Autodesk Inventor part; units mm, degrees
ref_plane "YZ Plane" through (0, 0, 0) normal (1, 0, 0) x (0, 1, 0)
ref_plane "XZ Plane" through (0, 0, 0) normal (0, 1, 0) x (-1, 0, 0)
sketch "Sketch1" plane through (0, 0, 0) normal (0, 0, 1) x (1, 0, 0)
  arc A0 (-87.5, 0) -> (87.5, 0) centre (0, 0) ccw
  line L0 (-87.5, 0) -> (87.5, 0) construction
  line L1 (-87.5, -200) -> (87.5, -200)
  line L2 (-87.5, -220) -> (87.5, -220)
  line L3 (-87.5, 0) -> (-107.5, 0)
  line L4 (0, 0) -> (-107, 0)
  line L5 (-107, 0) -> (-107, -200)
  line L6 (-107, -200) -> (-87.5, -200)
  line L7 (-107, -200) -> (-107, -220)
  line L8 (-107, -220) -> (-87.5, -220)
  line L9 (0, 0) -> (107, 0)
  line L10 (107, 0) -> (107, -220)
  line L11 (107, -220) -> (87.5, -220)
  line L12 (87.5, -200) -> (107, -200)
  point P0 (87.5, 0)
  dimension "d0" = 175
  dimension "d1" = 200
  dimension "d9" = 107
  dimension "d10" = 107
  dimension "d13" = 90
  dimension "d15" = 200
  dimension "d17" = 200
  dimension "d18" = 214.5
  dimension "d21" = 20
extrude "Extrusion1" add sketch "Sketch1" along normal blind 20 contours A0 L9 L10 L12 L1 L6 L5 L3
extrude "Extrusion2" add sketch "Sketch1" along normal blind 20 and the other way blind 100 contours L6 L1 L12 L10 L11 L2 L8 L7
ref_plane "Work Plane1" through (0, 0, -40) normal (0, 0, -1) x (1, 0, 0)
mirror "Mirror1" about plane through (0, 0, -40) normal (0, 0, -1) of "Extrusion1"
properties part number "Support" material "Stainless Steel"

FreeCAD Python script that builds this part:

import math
import FreeCAD as App
import Part
import Sketcher
from FreeCAD import Vector

doc = App.newDocument("Part")
params = doc.addObject("Spreadsheet::Sheet", "Params")
for row, (alias, value) in enumerate([
    ("sketch1_radius", "87.5 mm"),
    ("sketch1_height", "200 mm"),
    ("pad1_length", "20 mm"),
    ("sketch2_height", "20 mm"),
    ("pad2_length", "20 mm"),
    ("pad2_length2", "100 mm"),
], start=1):
    params.set(f"A{row}", alias)
    params.set(f"B{row}", "=" + value)
    params.setAlias(f"B{row}", alias)

body = doc.addObject("PartDesign::Body", "Body")

sketch1 = body.newObject("Sketcher::SketchObject", "Sketch")
sketch1.AttachmentSupport = (doc.getObject("XY_Plane"), [""])
sketch1.MapMode = "FlatFace"
sketch1.addGeometry([
    Part.ArcOfCircle(Part.Circle(Vector(0, 0, 0), Vector(0, 0, 1), 88), math.radians(180), math.radians(360)),
    Part.LineSegment(Vector(-88, 0, 0), Vector(-107, 0, 0)),
    Part.LineSegment(Vector(-107, 0, 0), Vector(-107, -200, 0)),
    Part.LineSegment(Vector(-107, -200, 0), Vector(107, -200, 0)),
    Part.LineSegment(Vector(107, -200, 0), Vector(107, 0, 0)),
    Part.LineSegment(Vector(107, 0, 0), Vector(88, 0, 0)),
], False)
sketch1.addConstraint([
    Sketcher.Constraint("Coincident", 0, 1, 1, 1),
    Sketcher.Constraint("Coincident", 1, 2, 2, 1),
    Sketcher.Constraint("Coincident", 2, 2, 3, 1),
    Sketcher.Constraint("Coincident", 3, 2, 4, 1),
    Sketcher.Constraint("Coincident", 4, 2, 5, 1),
    Sketcher.Constraint("Coincident", 5, 2, 0, 2),
    Sketcher.Constraint("Horizontal", 1),
    Sketcher.Constraint("Vertical", 2),
    Sketcher.Constraint("Horizontal", 3),
    Sketcher.Constraint("Vertical", 4),
    Sketcher.Constraint("Horizontal", 5),
    Sketcher.Constraint("Coincident", 0, 3, -1, 1),
    Sketcher.Constraint("Symmetric", 1, 2, 4, 2, -1, 1),
    Sketcher.Constraint("PointOnObject", 0, 1, -1),
    Sketcher.Constraint("Radius", 0, 87.5),
    Sketcher.Constraint("DistanceY", 2, 2, 2, 1, 200.0),
    Sketcher.Constraint("DistanceX", 1, 2, -1, 1, 107.0),
])
sketch1.setExpression("Constraints[14]", "Params.sketch1_radius")
sketch1.setExpression("Constraints[15]", "Params.sketch1_height")
pad1 = body.newObject("PartDesign::Pad", "Pad")
pad1.Profile = sketch1
pad1.setExpression("Length", "Params.pad1_length")

sketch2 = body.newObject("Sketcher::SketchObject", "Sketch001")
sketch2.AttachmentSupport = (doc.getObject("XY_Plane"), [""])
sketch2.MapMode = "FlatFace"
sketch2.addGeometry([
    Part.LineSegment(Vector(107, -200, 0), Vector(-107, -200, 0)),
    Part.LineSegment(Vector(-107, -200, 0), Vector(-107, -220, 0)),
    Part.LineSegment(Vector(-107, -220, 0), Vector(107, -220, 0)),
    Part.LineSegment(Vector(107, -220, 0), Vector(107, -200, 0)),
], False)
sketch2.addConstraint([
    Sketcher.Constraint("Coincident", 0, 2, 1, 1),
    Sketcher.Constraint("Coincident", 1, 2, 2, 1),
    Sketcher.Constraint("Coincident", 2, 2, 3, 1),
    Sketcher.Constraint("Coincident", 3, 2, 0, 1),
    Sketcher.Constraint("Horizontal", 0),
    Sketcher.Constraint("Vertical", 1),
    Sketcher.Constraint("Horizontal", 2),
    Sketcher.Constraint("Vertical", 3),
    Sketcher.Constraint("DistanceY", 1, 2, 1, 1, 20.0),
    Sketcher.Constraint("DistanceX", 0, 2, -1, 1, 107.0),
    Sketcher.Constraint("DistanceY", 0, 2, -1, 1, 200.0),
    Sketcher.Constraint("DistanceX", -1, 1, 2, 2, 107.0),
])
sketch2.setExpression("Constraints[8]", "Params.sketch2_height")
pad2 = body.newObject("PartDesign::Pad", "Pad001")
pad2.Profile = sketch2
pad2.Type = "TwoLengths"
pad2.setExpression("Length", "Params.pad2_length")
pad2.setExpression("Length2", "Params.pad2_length2")
doc.recompute()

datumplane = body.newObject("PartDesign::Plane", "DatumPlane")
datumplane.AttachmentSupport = (doc.getObject("XY_Plane"), [""])
datumplane.MapMode = "FlatFace"
datumplane.AttachmentOffset = App.Placement(Vector(0, 0, -40), App.Rotation())
mirrored = body.newObject("PartDesign::Mirrored", "Mirrored")
mirrored.Originals = [pad1]
mirrored.MirrorPlane = (datumplane, [""])
body.Tip = mirrored

doc.recompute()
